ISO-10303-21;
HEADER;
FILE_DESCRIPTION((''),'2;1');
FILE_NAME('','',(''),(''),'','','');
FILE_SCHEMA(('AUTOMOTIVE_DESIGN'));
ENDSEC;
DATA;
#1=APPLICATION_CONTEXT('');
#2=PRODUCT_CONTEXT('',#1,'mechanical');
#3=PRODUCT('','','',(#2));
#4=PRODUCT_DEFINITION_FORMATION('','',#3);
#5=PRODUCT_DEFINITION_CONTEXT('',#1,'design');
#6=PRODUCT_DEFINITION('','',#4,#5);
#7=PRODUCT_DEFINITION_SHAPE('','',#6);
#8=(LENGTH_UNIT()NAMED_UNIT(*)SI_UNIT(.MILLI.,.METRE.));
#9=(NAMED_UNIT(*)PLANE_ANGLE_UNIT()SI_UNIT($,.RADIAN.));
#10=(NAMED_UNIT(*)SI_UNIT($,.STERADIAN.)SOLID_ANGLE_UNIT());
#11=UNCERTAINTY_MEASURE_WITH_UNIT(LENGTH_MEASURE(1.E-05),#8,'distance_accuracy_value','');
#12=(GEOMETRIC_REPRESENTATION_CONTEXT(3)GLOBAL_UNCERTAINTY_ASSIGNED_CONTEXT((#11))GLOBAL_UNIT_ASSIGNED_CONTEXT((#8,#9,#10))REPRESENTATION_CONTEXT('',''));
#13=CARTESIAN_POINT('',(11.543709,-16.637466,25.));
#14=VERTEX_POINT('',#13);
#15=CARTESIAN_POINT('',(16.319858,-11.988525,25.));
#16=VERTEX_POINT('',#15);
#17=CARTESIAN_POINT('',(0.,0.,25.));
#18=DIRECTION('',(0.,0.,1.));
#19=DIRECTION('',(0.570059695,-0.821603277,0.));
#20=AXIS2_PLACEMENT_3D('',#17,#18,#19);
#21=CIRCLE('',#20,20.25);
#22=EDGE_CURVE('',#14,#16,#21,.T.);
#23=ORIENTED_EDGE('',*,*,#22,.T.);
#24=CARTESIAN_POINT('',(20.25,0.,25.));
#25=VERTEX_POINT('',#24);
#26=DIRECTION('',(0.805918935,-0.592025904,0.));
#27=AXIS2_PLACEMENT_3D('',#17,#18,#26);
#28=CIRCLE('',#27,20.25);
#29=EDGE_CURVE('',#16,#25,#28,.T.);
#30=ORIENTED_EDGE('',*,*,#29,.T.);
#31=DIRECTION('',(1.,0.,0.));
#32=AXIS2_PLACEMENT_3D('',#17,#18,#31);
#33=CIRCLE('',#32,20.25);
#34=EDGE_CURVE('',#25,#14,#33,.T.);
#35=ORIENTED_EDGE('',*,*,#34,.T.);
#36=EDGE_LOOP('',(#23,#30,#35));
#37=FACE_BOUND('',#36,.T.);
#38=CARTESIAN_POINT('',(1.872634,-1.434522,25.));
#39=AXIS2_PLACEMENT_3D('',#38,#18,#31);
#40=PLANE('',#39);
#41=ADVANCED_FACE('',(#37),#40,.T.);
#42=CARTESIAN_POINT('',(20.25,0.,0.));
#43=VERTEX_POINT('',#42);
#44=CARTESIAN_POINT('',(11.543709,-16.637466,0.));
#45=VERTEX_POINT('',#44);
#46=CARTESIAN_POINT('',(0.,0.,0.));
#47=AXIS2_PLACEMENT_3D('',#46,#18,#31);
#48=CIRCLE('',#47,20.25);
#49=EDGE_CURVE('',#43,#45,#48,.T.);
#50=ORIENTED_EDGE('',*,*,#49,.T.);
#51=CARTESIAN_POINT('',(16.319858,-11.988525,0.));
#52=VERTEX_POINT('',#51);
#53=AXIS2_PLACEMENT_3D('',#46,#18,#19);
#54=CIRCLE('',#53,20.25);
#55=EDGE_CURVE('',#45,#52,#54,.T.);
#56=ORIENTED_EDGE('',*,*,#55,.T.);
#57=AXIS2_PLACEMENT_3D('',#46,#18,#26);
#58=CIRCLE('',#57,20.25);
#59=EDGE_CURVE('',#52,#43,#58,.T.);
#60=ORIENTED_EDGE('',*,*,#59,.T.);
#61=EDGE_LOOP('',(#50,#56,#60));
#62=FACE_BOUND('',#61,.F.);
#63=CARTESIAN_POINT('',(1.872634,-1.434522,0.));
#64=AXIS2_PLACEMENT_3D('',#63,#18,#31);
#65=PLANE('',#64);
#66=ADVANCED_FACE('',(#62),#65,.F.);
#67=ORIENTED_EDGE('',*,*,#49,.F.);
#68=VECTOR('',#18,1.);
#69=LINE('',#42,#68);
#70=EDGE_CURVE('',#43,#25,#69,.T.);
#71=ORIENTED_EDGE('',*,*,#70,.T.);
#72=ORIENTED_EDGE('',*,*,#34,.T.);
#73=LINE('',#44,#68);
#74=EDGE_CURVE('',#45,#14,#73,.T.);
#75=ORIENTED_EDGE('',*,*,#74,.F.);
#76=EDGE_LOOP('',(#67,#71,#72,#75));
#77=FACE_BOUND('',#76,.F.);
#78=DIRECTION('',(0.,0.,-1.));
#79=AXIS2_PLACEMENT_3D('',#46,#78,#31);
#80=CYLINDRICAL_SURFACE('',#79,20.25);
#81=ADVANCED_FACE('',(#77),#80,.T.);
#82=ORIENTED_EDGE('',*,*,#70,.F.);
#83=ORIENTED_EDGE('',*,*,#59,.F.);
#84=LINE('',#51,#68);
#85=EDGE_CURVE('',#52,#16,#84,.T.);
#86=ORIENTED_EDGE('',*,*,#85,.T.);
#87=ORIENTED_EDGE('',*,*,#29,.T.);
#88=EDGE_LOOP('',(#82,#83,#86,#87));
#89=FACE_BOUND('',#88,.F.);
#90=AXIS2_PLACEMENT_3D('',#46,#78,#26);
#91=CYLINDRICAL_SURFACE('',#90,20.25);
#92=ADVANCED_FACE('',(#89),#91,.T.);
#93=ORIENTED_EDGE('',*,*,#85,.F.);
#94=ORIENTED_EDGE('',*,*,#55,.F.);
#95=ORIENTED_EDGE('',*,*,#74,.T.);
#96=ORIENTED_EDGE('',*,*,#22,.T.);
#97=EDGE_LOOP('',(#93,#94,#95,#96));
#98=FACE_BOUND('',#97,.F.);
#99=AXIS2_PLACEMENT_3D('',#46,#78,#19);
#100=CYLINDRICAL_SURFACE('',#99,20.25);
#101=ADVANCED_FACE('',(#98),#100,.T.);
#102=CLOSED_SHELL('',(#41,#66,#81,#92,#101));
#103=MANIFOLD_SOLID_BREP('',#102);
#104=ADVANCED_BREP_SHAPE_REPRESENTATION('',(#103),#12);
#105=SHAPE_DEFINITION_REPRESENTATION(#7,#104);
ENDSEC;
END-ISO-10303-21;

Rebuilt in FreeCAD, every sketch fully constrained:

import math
import FreeCAD as App
import Part
import Sketcher

V = App.Vector
Q = App.Units.Quantity

doc = App.newDocument("Part")
body = doc.addObject("PartDesign::Body", "Body")

sketch1 = body.newObject("Sketcher::SketchObject", "Sketch")
sketch1.AttachmentSupport = (doc.getObject("XY_Plane"), [""])
sketch1.MapMode = "FlatFace"
sketch1.addGeometry(Part.ArcOfCircle(Part.Circle(V(0, 0, 0), V(0, 0, 1), 20), math.radians(-36), math.radians(0)), False)
sketch1.addGeometry(Part.ArcOfCircle(Part.Circle(V(0, 0, 0), V(0, 0, 1), 20), math.radians(0), math.radians(305)), False)
sketch1.addGeometry(Part.ArcOfCircle(Part.Circle(V(0, 0, 0), V(0, 0, 1), 20), math.radians(-55.25), math.radians(-36.3)), False)
sketch1.addConstraint(Sketcher.Constraint("Tangent", 0, 2, 1, 1))
sketch1.addConstraint(Sketcher.Constraint("Tangent", 1, 2, 2, 1))
sketch1.addConstraint(Sketcher.Constraint("Tangent", 2, 2, 0, 1))
sketch1.addConstraint(Sketcher.Constraint("Coincident", 0, 3, -1, 1))
sketch1.addConstraint(Sketcher.Constraint("PointOnObject", 0, 2, -1))
sketch1.addConstraint(Sketcher.Constraint("Radius", 0, Q("20.25 mm")))
sketch1.addConstraint(Sketcher.Constraint("DistanceX", -1, 1, 1, 2, Q("11.543709 mm")))
sketch1.addConstraint(Sketcher.Constraint("DistanceX", -1, 1, 2, 2, Q("16.319858 mm")))
pad1 = body.newObject("PartDesign::Pad", "Pad")
pad1.Profile = sketch1
pad1.Length = 25

doc.recompute()
